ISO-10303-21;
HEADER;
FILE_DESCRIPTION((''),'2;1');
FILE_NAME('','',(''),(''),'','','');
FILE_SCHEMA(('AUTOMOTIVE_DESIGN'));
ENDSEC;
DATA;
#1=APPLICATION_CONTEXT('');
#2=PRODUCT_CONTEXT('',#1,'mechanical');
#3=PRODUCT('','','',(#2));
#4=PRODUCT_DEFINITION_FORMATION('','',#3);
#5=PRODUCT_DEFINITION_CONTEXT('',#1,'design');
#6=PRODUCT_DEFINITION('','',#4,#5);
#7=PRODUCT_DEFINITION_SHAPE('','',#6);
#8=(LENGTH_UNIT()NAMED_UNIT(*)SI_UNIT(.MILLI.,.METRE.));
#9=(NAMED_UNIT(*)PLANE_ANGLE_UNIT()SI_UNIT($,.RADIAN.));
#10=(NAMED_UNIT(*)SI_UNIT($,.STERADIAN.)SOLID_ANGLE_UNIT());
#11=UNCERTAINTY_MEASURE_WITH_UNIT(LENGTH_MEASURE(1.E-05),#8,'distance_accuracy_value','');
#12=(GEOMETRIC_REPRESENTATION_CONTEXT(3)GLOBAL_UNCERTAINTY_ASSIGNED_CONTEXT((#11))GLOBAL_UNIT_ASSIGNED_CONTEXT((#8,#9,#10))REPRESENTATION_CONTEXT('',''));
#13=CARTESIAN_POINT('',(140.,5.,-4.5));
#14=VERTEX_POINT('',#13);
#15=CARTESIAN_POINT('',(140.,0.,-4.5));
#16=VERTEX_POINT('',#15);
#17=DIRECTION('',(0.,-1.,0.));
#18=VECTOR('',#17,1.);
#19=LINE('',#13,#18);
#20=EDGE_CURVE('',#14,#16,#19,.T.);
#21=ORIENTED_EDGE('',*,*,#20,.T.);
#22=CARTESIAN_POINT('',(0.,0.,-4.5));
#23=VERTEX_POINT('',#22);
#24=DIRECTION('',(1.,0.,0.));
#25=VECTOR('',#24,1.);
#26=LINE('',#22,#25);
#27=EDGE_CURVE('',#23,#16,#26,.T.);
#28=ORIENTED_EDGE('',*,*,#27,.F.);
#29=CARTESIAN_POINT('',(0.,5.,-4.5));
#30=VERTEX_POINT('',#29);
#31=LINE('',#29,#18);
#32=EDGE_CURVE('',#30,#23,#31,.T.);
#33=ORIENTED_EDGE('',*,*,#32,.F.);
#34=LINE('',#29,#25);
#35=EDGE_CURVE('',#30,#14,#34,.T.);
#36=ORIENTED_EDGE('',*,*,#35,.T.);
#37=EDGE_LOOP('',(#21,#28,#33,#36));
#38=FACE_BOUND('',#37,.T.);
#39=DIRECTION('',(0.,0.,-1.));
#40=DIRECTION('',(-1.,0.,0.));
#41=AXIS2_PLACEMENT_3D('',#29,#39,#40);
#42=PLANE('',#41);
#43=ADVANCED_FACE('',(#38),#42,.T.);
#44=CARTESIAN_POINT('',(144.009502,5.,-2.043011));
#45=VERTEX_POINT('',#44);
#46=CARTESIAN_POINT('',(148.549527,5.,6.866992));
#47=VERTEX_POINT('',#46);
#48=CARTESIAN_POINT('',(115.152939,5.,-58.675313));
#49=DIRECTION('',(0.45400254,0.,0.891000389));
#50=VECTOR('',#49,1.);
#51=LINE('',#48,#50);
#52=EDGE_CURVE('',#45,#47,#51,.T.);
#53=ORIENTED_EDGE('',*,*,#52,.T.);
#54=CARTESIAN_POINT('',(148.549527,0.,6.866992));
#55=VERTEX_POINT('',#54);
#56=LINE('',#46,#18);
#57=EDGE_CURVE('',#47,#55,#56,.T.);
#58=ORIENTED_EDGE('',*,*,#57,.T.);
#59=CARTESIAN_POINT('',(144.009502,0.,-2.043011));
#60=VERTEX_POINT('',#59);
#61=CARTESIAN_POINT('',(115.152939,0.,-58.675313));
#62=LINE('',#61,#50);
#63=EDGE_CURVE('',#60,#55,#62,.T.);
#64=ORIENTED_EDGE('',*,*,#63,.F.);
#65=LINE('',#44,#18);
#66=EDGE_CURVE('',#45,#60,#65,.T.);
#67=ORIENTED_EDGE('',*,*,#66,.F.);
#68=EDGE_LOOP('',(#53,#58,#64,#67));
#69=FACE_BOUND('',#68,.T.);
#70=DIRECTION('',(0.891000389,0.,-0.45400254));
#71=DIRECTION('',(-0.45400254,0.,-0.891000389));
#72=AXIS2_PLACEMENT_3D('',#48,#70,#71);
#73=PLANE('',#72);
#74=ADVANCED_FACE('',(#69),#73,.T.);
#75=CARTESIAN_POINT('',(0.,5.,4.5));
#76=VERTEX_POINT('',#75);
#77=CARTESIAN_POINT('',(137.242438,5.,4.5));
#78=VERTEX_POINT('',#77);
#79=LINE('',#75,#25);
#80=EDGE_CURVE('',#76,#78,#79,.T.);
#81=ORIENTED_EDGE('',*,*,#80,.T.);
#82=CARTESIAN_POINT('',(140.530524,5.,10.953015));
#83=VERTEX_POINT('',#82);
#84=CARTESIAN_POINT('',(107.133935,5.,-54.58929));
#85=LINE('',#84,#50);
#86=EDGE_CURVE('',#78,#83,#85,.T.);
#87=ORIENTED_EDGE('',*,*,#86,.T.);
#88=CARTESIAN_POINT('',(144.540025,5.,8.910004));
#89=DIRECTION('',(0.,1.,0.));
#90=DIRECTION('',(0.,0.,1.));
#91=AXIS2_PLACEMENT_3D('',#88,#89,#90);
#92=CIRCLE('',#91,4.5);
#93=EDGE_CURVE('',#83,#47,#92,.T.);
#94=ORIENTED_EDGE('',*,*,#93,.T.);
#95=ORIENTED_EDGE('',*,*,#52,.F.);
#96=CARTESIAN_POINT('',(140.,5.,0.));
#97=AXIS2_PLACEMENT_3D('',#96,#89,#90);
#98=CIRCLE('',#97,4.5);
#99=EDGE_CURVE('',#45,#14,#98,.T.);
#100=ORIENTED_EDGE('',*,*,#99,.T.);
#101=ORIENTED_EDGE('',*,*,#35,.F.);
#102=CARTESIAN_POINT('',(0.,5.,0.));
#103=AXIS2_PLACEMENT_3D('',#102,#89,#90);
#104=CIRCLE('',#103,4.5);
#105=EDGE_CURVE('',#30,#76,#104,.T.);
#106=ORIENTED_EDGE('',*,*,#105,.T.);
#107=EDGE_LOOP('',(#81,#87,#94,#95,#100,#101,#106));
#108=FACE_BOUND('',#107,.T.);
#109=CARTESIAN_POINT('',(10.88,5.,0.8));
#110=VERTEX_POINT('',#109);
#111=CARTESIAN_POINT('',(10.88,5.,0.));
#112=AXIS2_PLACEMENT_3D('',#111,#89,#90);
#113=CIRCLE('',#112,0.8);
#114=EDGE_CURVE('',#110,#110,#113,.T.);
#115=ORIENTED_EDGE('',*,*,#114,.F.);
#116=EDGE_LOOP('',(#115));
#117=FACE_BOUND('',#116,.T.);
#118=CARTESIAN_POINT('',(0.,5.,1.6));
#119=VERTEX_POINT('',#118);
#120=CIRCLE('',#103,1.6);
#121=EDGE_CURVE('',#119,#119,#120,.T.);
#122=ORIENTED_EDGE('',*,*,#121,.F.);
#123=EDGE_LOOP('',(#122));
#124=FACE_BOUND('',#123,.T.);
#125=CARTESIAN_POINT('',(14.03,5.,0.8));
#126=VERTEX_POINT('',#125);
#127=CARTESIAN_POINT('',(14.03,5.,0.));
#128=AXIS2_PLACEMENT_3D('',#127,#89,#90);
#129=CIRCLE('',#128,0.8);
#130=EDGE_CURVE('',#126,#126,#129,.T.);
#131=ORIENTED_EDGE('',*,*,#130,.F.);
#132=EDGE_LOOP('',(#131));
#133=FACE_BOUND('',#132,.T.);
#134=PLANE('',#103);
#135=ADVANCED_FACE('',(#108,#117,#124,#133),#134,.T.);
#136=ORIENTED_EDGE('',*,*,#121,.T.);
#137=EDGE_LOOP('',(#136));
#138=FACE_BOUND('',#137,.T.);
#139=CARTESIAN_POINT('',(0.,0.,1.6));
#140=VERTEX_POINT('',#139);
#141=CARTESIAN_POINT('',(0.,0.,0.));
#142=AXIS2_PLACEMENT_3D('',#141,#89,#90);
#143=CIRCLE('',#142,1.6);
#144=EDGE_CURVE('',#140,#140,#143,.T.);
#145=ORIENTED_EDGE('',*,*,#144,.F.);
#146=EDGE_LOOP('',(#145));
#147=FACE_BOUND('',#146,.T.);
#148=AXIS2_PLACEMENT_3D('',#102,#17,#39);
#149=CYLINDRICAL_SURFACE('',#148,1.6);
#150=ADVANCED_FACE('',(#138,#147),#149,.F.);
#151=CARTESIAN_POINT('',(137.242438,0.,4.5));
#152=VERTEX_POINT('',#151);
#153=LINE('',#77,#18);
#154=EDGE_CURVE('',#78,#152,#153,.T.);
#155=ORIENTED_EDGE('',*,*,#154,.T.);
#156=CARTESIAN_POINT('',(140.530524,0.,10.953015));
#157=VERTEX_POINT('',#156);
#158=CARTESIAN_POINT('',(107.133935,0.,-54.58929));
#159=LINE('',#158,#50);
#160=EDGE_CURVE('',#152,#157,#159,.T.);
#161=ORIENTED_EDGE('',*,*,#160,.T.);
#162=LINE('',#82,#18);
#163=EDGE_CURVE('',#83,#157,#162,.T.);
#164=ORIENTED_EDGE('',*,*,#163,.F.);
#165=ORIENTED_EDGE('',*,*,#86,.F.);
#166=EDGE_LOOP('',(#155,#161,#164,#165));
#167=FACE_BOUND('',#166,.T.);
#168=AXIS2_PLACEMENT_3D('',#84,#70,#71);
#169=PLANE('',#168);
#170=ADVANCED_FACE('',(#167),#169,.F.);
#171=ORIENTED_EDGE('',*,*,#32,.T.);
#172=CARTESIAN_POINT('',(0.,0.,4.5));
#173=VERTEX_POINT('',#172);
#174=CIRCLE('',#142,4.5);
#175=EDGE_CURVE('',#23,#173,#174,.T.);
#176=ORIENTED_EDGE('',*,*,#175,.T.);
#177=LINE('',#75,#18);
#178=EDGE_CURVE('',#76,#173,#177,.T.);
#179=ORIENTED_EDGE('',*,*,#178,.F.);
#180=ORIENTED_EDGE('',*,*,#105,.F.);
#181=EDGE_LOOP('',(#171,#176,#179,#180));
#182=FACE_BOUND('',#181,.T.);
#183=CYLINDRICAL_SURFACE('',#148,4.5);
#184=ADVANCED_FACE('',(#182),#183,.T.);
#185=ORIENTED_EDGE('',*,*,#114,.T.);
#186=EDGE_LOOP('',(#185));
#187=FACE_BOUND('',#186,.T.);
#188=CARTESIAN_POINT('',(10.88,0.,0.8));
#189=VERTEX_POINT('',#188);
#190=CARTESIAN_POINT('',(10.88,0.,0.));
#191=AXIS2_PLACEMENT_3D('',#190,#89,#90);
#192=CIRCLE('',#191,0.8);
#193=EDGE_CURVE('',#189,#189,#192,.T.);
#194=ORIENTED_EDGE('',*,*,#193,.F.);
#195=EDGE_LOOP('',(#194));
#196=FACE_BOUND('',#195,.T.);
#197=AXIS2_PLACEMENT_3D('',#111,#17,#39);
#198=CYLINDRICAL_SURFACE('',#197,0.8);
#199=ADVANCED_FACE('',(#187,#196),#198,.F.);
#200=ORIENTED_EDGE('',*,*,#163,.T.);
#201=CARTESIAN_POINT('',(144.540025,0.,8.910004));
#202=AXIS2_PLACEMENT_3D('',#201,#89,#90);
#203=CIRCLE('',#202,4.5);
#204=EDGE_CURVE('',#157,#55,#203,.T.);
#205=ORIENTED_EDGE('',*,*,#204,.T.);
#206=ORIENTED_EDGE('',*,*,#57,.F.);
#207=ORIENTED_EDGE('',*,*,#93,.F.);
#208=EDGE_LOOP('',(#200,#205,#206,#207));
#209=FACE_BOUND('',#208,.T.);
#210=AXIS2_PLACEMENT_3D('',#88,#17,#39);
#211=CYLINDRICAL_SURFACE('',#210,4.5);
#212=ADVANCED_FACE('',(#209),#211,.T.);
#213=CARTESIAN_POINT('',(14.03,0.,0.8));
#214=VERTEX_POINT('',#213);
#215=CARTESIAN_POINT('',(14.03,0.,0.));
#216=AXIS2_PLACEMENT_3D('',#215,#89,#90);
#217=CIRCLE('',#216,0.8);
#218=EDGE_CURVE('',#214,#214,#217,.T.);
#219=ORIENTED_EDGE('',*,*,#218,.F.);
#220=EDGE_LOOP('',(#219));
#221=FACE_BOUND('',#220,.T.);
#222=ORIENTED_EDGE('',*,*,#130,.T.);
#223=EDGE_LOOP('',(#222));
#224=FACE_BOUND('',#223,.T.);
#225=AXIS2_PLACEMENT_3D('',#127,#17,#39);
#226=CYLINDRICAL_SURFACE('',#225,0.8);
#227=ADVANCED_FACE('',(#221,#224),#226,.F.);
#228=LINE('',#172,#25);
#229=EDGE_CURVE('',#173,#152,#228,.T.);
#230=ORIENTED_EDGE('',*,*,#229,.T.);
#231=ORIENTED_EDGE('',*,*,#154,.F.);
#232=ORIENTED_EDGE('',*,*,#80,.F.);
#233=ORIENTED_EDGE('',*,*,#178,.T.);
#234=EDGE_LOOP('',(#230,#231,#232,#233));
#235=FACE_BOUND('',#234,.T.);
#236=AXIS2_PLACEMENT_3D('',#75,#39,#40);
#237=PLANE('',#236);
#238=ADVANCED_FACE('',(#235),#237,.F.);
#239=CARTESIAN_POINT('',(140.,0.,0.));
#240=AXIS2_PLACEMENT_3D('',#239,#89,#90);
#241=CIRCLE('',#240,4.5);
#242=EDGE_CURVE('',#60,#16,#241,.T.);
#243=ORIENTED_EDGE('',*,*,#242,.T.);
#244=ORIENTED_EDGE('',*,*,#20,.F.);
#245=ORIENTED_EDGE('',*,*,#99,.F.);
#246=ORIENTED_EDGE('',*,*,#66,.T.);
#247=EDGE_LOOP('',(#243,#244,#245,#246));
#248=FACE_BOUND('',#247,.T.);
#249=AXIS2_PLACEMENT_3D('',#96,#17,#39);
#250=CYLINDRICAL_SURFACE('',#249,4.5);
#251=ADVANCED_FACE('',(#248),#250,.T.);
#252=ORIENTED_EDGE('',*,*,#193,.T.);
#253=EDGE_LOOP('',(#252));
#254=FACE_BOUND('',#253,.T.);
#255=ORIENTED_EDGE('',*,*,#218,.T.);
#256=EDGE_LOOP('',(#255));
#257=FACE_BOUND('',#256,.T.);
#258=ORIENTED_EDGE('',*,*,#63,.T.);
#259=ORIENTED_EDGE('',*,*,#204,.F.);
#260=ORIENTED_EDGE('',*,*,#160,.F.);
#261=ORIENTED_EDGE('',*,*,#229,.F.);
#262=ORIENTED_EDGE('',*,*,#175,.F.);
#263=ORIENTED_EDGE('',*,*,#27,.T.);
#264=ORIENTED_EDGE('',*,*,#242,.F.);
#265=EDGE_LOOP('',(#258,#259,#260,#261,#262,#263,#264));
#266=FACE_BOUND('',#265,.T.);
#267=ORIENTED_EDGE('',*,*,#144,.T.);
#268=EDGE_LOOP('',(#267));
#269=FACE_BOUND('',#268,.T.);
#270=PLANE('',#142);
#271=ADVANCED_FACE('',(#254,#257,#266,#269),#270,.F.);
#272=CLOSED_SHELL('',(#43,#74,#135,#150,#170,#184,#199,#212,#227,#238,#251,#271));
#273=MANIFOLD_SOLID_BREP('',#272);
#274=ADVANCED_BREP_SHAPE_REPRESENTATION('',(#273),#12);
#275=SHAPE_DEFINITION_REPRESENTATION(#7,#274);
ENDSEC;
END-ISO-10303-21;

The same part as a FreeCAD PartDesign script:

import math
import FreeCAD as App
import Part
import Sketcher

V = App.Vector
Q = App.Units.Quantity

doc = App.newDocument("Part")
body = doc.addObject("PartDesign::Body", "Body")

sketch1 = body.newObject("Sketcher::SketchObject", "Sketch")
sketch1.AttachmentSupport = (doc.getObject("XZ_Plane"), [""])
sketch1.MapMode = "FlatFace"
sketch1.addGeometry(Part.ArcOfCircle(Part.Circle(V(0, 0, 0), V(0, 0, 1), 4.5), math.radians(90), math.radians(270)), False)
sketch1.addGeometry(Part.LineSegment(V(0, 4.5, 0), V(137.2, 4.5, 0)), False)
sketch1.addGeometry(Part.LineSegment(V(137.2, 4.5, 0), V(140.5, 11, 0)), False)
sketch1.addGeometry(Part.ArcOfCircle(Part.Circle(V(144.5, 8.9, 0), V(0, 0, 1), 4.5), math.radians(-27), math.radians(153)), False)
sketch1.addGeometry(Part.LineSegment(V(148.5, 6.9, 0), V(144, -2, 0)), False)
sketch1.addGeometry(Part.ArcOfCircle(Part.Circle(V(140, 0, 0), V(0, 0, 1), 4.5), math.radians(-90), math.radians(-27)), False)
sketch1.addGeometry(Part.LineSegment(V(140, -4.5, 0), V(0, -4.5, 0)), False)
sketch1.addGeometry(Part.Circle(V(14, 0, 0), V(0, 0, 1), 0.8), False)
sketch1.addGeometry(Part.Circle(V(10.9, 0, 0), V(0, 0, 1), 0.8), False)
sketch1.addGeometry(Part.Circle(V(0, 0, 0), V(0, 0, 1), 1.6), False)
sketch1.addConstraint(Sketcher.Constraint("Tangent", 0, 1, 1, 1))
sketch1.addConstraint(Sketcher.Constraint("Coincident", 1, 2, 2, 1))
sketch1.addConstraint(Sketcher.Constraint("Tangent", 2, 2, 3, 2))
sketch1.addConstraint(Sketcher.Constraint("Tangent", 3, 1, 4, 1))
sketch1.addConstraint(Sketcher.Constraint("Tangent", 4, 2, 5, 2))
sketch1.addConstraint(Sketcher.Constraint("Tangent", 5, 1, 6, 1))
sketch1.addConstraint(Sketcher.Constraint("Tangent", 6, 2, 0, 2))
sketch1.addConstraint(Sketcher.Constraint("Horizontal", 1))
sketch1.addConstraint(Sketcher.Constraint("Horizontal", 6))
sketch1.addConstraint(Sketcher.Constraint("Coincident", 0, 3, -1, 1))
sketch1.addConstraint(Sketcher.Constraint("Coincident", 9, 3, -1, 1))
sketch1.addConstraint(Sketcher.Constraint("Equal", 0, 3))
sketch1.addConstraint(Sketcher.Constraint("Equal", 3, 5))
sketch1.addConstraint(Sketcher.Constraint("Equal", 7, 8))
sketch1.addConstraint(Sketcher.Constraint("PointOnObject", 7, 3, -1))
sketch1.addConstraint(Sketcher.Constraint("PointOnObject", 8, 3, -1))
sketch1.addConstraint(Sketcher.Constraint("Parallel", 2, 4))
sketch1.addConstraint(Sketcher.Constraint("Diameter", 7, Q("1.6 mm")))
sketch1.addConstraint(Sketcher.Constraint("Diameter", 9, Q("3.2 mm")))
sketch1.addConstraint(Sketcher.Constraint("Radius", 0, Q("4.5 mm")))
sketch1.addConstraint(Sketcher.Constraint("DistanceX", 6, 2, 6, 1, Q("140 mm")))
sketch1.addConstraint(Sketcher.Constraint("Distance", 4, Q("10 mm")))
sketch1.addConstraint(Sketcher.Constraint("DistanceX", -1, 1, 7, 3, Q("14.03 mm")))
sketch1.addConstraint(Sketcher.Constraint("DistanceX", -1, 1, 8, 3, Q("10.88 mm")))
sketch1.addConstraint(Sketcher.Constraint("DistanceX", 1, 1, 1, 2, Q("137.242438 mm")))
pad1 = body.newObject("PartDesign::Pad", "Pad")
pad1.Profile = sketch1
pad1.Length = 5
pad1.Reversed = True

doc.recompute()
